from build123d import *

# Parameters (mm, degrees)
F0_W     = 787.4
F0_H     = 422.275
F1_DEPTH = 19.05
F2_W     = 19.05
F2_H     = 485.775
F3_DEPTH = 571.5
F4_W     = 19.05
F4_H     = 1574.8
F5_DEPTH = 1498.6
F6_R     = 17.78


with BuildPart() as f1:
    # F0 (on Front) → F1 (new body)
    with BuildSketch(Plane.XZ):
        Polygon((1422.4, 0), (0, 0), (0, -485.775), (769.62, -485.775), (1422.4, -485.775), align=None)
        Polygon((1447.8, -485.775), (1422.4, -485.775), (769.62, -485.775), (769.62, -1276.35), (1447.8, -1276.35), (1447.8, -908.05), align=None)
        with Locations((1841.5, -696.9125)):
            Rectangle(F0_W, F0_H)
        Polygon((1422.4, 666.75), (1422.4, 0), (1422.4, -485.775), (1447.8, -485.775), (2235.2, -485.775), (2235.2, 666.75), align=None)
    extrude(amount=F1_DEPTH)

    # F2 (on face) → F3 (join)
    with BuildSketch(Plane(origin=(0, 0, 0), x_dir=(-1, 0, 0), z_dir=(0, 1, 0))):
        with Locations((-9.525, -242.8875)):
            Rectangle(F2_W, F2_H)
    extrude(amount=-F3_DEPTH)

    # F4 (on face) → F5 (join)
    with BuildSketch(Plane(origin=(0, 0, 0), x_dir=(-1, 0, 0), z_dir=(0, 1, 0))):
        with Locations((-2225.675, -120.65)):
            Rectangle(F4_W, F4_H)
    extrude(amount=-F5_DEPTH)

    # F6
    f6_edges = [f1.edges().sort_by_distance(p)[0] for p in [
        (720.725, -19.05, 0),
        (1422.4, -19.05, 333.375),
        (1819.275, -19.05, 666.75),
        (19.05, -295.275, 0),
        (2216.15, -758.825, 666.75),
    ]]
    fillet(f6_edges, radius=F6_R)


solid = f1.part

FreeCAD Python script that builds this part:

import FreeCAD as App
import Part
import Sketcher
from FreeCAD import Vector
Q = App.Units.Quantity


def edges_at(feature, points):
    """Names of the edges that pass closest to the given points."""
    edges = feature.Shape.Edges
    near = lambda p: min(range(len(edges)), key=lambda i: edges[i].distToShape(Part.Vertex(*p))[0])
    return sorted({f"Edge{near(p) + 1}" for p in points})


def add_polygon(sketch, points):
    """Adds a closed chain of lines whose ends are joined by coincident constraints."""
    first, n = sketch.GeometryCount, len(points)
    for a, b in zip(points, points[1:] + points[:1]):
        sketch.addGeometry(Part.LineSegment(App.Vector(*a, 0), App.Vector(*b, 0)), False)
    for i in range(n):
        sketch.addConstraint(Sketcher.Constraint("Coincident", first + i, 2, first + (i + 1) % n, 1))

doc = App.newDocument("Part")
body = doc.addObject("PartDesign::Body", "Body")

sketch1 = body.newObject("Sketcher::SketchObject", "Sketch")
sketch1.AttachmentSupport = (doc.getObject("XZ_Plane"), [""])
sketch1.MapMode = "FlatFace"
add_polygon(sketch1, [(1422.4, 0), (0, 0), (0, -485.775), (769.62, -485.775), (769.62, -1276.35), (1447.8, -1276.35), (1447.8, -908.05), (2235.2, -908.05), (2235.2, 666.75), (1422.4, 666.75)])
sketch1.addConstraint(Sketcher.Constraint("Horizontal", 0))
sketch1.addConstraint(Sketcher.Constraint("Vertical", 1))
sketch1.addConstraint(Sketcher.Constraint("Horizontal", 2))
sketch1.addConstraint(Sketcher.Constraint("Vertical", 3))
sketch1.addConstraint(Sketcher.Constraint("Horizontal", 4))
sketch1.addConstraint(Sketcher.Constraint("Vertical", 5))
sketch1.addConstraint(Sketcher.Constraint("Horizontal", 6))
sketch1.addConstraint(Sketcher.Constraint("Vertical", 7))
sketch1.addConstraint(Sketcher.Constraint("Horizontal", 8))
sketch1.addConstraint(Sketcher.Constraint("Vertical", 9))
sketch1.addConstraint(Sketcher.Constraint("Coincident", 0, 2, -1, 1))
sketch1.addConstraint(Sketcher.Constraint("DistanceX", 0, 2, 0, 1, Q("56 in")))
sketch1.addConstraint(Sketcher.Constraint("DistanceX", 6, 1, 6, 2, Q("31 in")))
sketch1.addConstraint(Sketcher.Constraint("DistanceX", 8, 2, 8, 1, Q("32 in")))
sketch1.addConstraint(Sketcher.Constraint("DistanceY", 7, 1, 7, 2, Q("62 in")))
sketch1.addConstraint(Sketcher.Constraint("DistanceX", 2, 1, 2, 2, Q("30.3 in")))
sketch1.addConstraint(Sketcher.Constraint("DistanceY", 5, 1, 5, 2, Q("14.5 in")))
sketch1.addConstraint(Sketcher.Constraint("DistanceY", 9, 2, 9, 1, Q("26.25 in")))
sketch1.addConstraint(Sketcher.Constraint("DistanceY", 1, 2, 1, 1, Q("19.125 in")))
pad1 = body.newObject("PartDesign::Pad", "Pad")
pad1.Profile = sketch1
pad1.Length = Q("0.75 in")

sketch2 = body.newObject("Sketcher::SketchObject", "Sketch001")
sketch2.AttachmentSupport = (doc.getObject("XZ_Plane"), [""])
sketch2.MapMode = "FlatFace"
add_polygon(sketch2, [(19.05, 0), (19.05, -485.775), (0, -485.775), (0, 0)])
sketch2.addConstraint(Sketcher.Constraint("Vertical", 0))
sketch2.addConstraint(Sketcher.Constraint("Horizontal", 1))
sketch2.addConstraint(Sketcher.Constraint("Vertical", 2))
sketch2.addConstraint(Sketcher.Constraint("Horizontal", 3))
sketch2.addConstraint(Sketcher.Constraint("Coincident", 2, 2, -1, 1))
sketch2.addConstraint(Sketcher.Constraint("DistanceX", 1, 2, 1, 1, Q("0.75 in")))
sketch2.addConstraint(Sketcher.Constraint("DistanceY", 0, 2, 0, 1, Q("19.125 in")))
pad2 = body.newObject("PartDesign::Pad", "Pad001")
pad2.Profile = sketch2
pad2.Length = Q("22.5 in")

sketch3 = body.newObject("Sketcher::SketchObject", "Sketch002")
sketch3.AttachmentSupport = (doc.getObject("XZ_Plane"), [""])
sketch3.MapMode = "FlatFace"
add_polygon(sketch3, [(2235.2, 666.75), (2235.2, -908.05), (2216.15, -908.05), (2216.15, 666.75)])
sketch3.addConstraint(Sketcher.Constraint("Vertical", 0))
sketch3.addConstraint(Sketcher.Constraint("Horizontal", 1))
sketch3.addConstraint(Sketcher.Constraint("Vertical", 2))
sketch3.addConstraint(Sketcher.Constraint("Horizontal", 3))
sketch3.addConstraint(Sketcher.Constraint("DistanceY", 0, 2, 0, 1, Q("62 in")))
sketch3.addConstraint(Sketcher.Constraint("DistanceX", -1, 1, 0, 2, Q("88 in")))
sketch3.addConstraint(Sketcher.Constraint("DistanceX", 1, 2, 1, 1, Q("0.75 in")))
sketch3.addConstraint(Sketcher.Constraint("DistanceY", 0, 2, -1, 1, Q("35.75 in")))
pad3 = body.newObject("PartDesign::Pad", "Pad002")
pad3.Profile = sketch3
pad3.Length = Q("59 in")
doc.recompute()

fillet = body.newObject("PartDesign::Fillet", "Fillet")
fillet.Base = (pad3, edges_at(pad3, [
    (720.725, -19.05, 0),
    (1422.4, -19.05, 333.375),
    (1819.275, -19.05, 666.75),
    (19.05, -295.275, 0),
    (2216.15, -758.825, 666.75),
]))
fillet.Radius = Q("0.7 in")

doc.recompute()
